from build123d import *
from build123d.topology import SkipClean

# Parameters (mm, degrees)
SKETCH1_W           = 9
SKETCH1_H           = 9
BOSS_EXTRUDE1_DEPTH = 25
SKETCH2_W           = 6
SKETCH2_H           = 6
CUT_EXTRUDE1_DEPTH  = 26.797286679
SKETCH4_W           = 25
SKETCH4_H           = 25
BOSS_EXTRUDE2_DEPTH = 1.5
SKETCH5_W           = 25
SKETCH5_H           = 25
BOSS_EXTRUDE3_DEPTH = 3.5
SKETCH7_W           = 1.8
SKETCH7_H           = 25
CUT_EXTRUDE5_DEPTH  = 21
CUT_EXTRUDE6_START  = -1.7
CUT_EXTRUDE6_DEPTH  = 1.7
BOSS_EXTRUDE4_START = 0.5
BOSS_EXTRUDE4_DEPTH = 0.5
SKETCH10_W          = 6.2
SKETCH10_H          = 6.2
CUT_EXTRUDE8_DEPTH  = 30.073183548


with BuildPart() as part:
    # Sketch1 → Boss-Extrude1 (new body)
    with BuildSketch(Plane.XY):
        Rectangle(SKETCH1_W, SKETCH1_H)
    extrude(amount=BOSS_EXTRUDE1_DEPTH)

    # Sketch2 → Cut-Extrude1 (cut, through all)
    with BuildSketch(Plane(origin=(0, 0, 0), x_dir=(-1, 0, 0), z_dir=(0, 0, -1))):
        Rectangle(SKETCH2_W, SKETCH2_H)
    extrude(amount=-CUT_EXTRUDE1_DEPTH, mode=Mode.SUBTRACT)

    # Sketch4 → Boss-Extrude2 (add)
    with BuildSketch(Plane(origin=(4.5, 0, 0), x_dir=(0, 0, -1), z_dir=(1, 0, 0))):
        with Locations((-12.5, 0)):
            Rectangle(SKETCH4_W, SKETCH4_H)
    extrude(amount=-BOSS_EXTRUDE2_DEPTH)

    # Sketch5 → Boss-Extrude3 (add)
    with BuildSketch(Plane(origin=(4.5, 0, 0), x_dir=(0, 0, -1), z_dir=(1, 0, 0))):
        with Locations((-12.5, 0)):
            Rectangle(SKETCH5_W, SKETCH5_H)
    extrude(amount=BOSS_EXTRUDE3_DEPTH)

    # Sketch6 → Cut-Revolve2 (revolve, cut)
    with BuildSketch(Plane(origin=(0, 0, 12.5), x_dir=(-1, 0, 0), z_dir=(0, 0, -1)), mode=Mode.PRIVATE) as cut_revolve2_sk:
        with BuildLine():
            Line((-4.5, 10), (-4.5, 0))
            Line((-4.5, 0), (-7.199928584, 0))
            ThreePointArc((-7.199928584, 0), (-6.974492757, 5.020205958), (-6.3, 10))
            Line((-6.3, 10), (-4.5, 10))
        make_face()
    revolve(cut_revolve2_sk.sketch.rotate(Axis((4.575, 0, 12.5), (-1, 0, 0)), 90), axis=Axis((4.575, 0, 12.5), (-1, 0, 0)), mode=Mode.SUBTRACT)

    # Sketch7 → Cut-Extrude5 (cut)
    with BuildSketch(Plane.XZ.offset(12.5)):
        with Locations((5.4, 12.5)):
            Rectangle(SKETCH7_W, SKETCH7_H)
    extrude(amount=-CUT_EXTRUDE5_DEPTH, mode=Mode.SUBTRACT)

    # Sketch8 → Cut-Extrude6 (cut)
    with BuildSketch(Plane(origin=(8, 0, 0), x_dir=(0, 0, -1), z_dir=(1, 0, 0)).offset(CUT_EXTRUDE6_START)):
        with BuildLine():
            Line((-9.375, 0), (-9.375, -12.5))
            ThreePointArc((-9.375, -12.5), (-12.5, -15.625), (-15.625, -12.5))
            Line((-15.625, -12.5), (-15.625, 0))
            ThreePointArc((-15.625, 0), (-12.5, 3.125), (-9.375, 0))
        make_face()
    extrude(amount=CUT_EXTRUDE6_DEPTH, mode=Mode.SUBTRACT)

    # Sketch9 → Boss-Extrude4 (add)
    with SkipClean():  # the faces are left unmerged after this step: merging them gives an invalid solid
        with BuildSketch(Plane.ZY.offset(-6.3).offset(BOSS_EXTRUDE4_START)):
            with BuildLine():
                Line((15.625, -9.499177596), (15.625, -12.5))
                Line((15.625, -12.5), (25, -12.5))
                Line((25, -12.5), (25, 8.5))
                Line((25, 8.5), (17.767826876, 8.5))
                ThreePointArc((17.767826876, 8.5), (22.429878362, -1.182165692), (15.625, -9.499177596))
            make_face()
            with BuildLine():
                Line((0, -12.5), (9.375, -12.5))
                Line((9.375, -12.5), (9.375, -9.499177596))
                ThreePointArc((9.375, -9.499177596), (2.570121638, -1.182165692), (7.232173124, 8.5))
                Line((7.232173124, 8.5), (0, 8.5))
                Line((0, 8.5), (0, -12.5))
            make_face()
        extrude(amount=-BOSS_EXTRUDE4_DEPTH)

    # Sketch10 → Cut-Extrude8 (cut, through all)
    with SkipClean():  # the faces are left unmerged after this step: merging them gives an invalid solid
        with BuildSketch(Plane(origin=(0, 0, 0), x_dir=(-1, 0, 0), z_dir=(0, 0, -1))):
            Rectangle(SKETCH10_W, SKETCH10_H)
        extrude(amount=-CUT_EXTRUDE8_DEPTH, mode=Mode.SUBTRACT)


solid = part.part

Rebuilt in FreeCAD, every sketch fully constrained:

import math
import FreeCAD as App
import Part
import Sketcher
Q = App.Units.Quantity

doc = App.newDocument("Part")
body = doc.addObject("PartDesign::Body", "Body")

sketch1 = body.newObject("Sketcher::SketchObject", "Sketch")
sketch1.AttachmentSupport = (doc.getObject("XY_Plane"), [""])
sketch1.MapMode = "FlatFace"
sketch1.addGeometry([
    Part.LineSegment(App.Vector(-4.5, 4.5, 0), App.Vector(-4.5, -4.5, 0)),
    Part.LineSegment(App.Vector(-4.5, -4.5, 0), App.Vector(4.5, -4.5, 0)),
    Part.LineSegment(App.Vector(4.5, -4.5, 0), App.Vector(4.5, 4.5, 0)),
    Part.LineSegment(App.Vector(4.5, 4.5, 0), App.Vector(-4.5, 4.5, 0)),
], False)
sketch1.addConstraint([
    Sketcher.Constraint("Coincident", 0, 2, 1, 1),
    Sketcher.Constraint("Coincident", 1, 2, 2, 1),
    Sketcher.Constraint("Coincident", 2, 2, 3, 1),
    Sketcher.Constraint("Coincident", 3, 2, 0, 1),
    Sketcher.Constraint("Vertical", 0),
    Sketcher.Constraint("Horizontal", 1),
    Sketcher.Constraint("Vertical", 2),
    Sketcher.Constraint("Horizontal", 3),
    Sketcher.Constraint("Symmetric", 0, 2, 2, 2, -1, 1),
    Sketcher.Constraint("Equal", 3, 0),
    Sketcher.Constraint("DistanceX", 1, 1, 1, 2, Q("9 mm")),
])
pad1 = body.newObject("PartDesign::Pad", "Pad")
pad1.Profile = sketch1
pad1.Length = 25

sketch2 = body.newObject("Sketcher::SketchObject", "Sketch001")
sketch2.AttachmentSupport = (doc.getObject("XY_Plane"), [""])
sketch2.MapMode = "FlatFace"
sketch2.addGeometry([
    Part.LineSegment(App.Vector(3, 3, 0), App.Vector(3, -3, 0)),
    Part.LineSegment(App.Vector(3, -3, 0), App.Vector(-3, -3, 0)),
    Part.LineSegment(App.Vector(-3, -3, 0), App.Vector(-3, 3, 0)),
    Part.LineSegment(App.Vector(-3, 3, 0), App.Vector(3, 3, 0)),
], False)
sketch2.addConstraint([
    Sketcher.Constraint("Coincident", 0, 2, 1, 1),
    Sketcher.Constraint("Coincident", 1, 2, 2, 1),
    Sketcher.Constraint("Coincident", 2, 2, 3, 1),
    Sketcher.Constraint("Coincident", 3, 2, 0, 1),
    Sketcher.Constraint("Vertical", 0),
    Sketcher.Constraint("Horizontal", 1),
    Sketcher.Constraint("Vertical", 2),
    Sketcher.Constraint("Horizontal", 3),
    Sketcher.Constraint("Symmetric", 0, 2, 2, 2, -1, 1),
    Sketcher.Constraint("Equal", 3, 0),
    Sketcher.Constraint("DistanceX", 1, 2, 1, 1, Q("6 mm")),
])
pocket1 = body.newObject("PartDesign::Pocket", "Pocket")
pocket1.Profile = sketch2
pocket1.Type = "ThroughAll"
pocket1.Reversed = True

sketch3 = body.newObject("Sketcher::SketchObject", "Sketch002")
sketch3.AttachmentSupport = (doc.getObject("YZ_Plane"), [""])
sketch3.MapMode = "FlatFace"
sketch3.AttachmentOffset = App.Placement(App.Vector(0, 0, 4.5), App.Rotation())
sketch3.addGeometry([
    Part.LineSegment(App.Vector(12.5, 25, 0), App.Vector(-12.5, 25, 0)),
    Part.LineSegment(App.Vector(-12.5, 25, 0), App.Vector(-12.5, 0, 0)),
    Part.LineSegment(App.Vector(-12.5, 0, 0), App.Vector(12.5, 0, 0)),
    Part.LineSegment(App.Vector(12.5, 0, 0), App.Vector(12.5, 25, 0)),
], False)
sketch3.addConstraint([
    Sketcher.Constraint("Coincident", 0, 2, 1, 1),
    Sketcher.Constraint("Coincident", 1, 2, 2, 1),
    Sketcher.Constraint("Coincident", 2, 2, 3, 1),
    Sketcher.Constraint("Coincident", 3, 2, 0, 1),
    Sketcher.Constraint("Horizontal", 0),
    Sketcher.Constraint("Vertical", 1),
    Sketcher.Constraint("Horizontal", 2),
    Sketcher.Constraint("Vertical", 3),
    Sketcher.Constraint("Symmetric", 1, 2, 2, 2, -1, 1),
    Sketcher.Constraint("Equal", 2, 1),
    Sketcher.Constraint("DistanceX", 0, 2, 0, 1, Q("25 mm")),
])
pad2 = body.newObject("PartDesign::Pad", "Pad001")
pad2.Profile = sketch3
pad2.Length = 1.5
pad2.Reversed = True

sketch4 = body.newObject("Sketcher::SketchObject", "Sketch003")
sketch4.AttachmentSupport = (doc.getObject("YZ_Plane"), [""])
sketch4.MapMode = "FlatFace"
sketch4.AttachmentOffset = App.Placement(App.Vector(0, 0, 4.5), App.Rotation())
sketch4.addGeometry([
    Part.LineSegment(App.Vector(12.5, 25, 0), App.Vector(-12.5, 25, 0)),
    Part.LineSegment(App.Vector(-12.5, 25, 0), App.Vector(-12.5, 0, 0)),
    Part.LineSegment(App.Vector(-12.5, 0, 0), App.Vector(12.5, 0, 0)),
    Part.LineSegment(App.Vector(12.5, 0, 0), App.Vector(12.5, 25, 0)),
], False)
sketch4.addConstraint([
    Sketcher.Constraint("Coincident", 0, 2, 1, 1),
    Sketcher.Constraint("Coincident", 1, 2, 2, 1),
    Sketcher.Constraint("Coincident", 2, 2, 3, 1),
    Sketcher.Constraint("Coincident", 3, 2, 0, 1),
    Sketcher.Constraint("Horizontal", 0),
    Sketcher.Constraint("Vertical", 1),
    Sketcher.Constraint("Horizontal", 2),
    Sketcher.Constraint("Vertical", 3),
    Sketcher.Constraint("Symmetric", 1, 2, 2, 2, -1, 1),
    Sketcher.Constraint("Equal", 2, 1),
    Sketcher.Constraint("DistanceX", 0, 2, 0, 1, Q("25 mm")),
])
pad3 = body.newObject("PartDesign::Pad", "Pad002")
pad3.Profile = sketch4
pad3.Length = 3.5

sketch5 = body.newObject("Sketcher::SketchObject", "Sketch004")
sketch5.AttachmentSupport = (doc.getObject("XY_Plane"), [""])
sketch5.MapMode = "FlatFace"
sketch5.AttachmentOffset = App.Placement(App.Vector(0, 0, 12.5), App.Rotation())
sketch5.addGeometry([
    Part.LineSegment(App.Vector(4.5, 0, 0), App.Vector(4.5, 10, 0)),
    Part.LineSegment(App.Vector(4.5, 10, 0), App.Vector(6.3, 10, 0)),
    Part.ArcOfCircle(Part.Circle(App.Vector(-48.81, 0, 0), App.Vector(0, 0, 1), 56.009929), math.radians(0), math.radians(10.284717)),
    Part.LineSegment(App.Vector(7.199929, 0, 0), App.Vector(4.5, 0, 0)),
], False)
sketch5.addConstraint([
    Sketcher.Constraint("Coincident", 0, 2, 1, 1),
    Sketcher.Constraint("Coincident", 1, 2, 2, 2),
    Sketcher.Constraint("Coincident", 2, 1, 3, 1),
    Sketcher.Constraint("Coincident", 3, 2, 0, 1),
    Sketcher.Constraint("Vertical", 0),
    Sketcher.Constraint("Horizontal", 1),
    Sketcher.Constraint("Horizontal", 3),
    Sketcher.Constraint("PointOnObject", 2, 3, -1),
    Sketcher.Constraint("PointOnObject", 2, 1, -1),
    Sketcher.Constraint("DistanceY", 0, 1, 0, 2, Q("10 mm")),
    Sketcher.Constraint("DistanceX", 1, 1, 1, 2, Q("1.8 mm")),
    Sketcher.Constraint("DistanceX", -1, 1, 0, 2, Q("4.5 mm")),
    Sketcher.Constraint("DistanceX", 2, 3, -1, 1, Q("48.81 mm")),
])
groove = body.newObject("PartDesign::Groove", "Groove")
groove.Profile = sketch5
groove.ReferenceAxis = (sketch5, ["H_Axis"])
groove.Angle = 360

sketch6 = body.newObject("Sketcher::SketchObject", "Sketch005")
sketch6.AttachmentSupport = (doc.getObject("XZ_Plane"), [""])
sketch6.MapMode = "FlatFace"
sketch6.AttachmentOffset = App.Placement(App.Vector(0, 0, 12.5), App.Rotation())
sketch6.addGeometry([
    Part.LineSegment(App.Vector(4.5, 25, 0), App.Vector(4.5, 0, 0)),
    Part.LineSegment(App.Vector(4.5, 0, 0), App.Vector(6.3, 0, 0)),
    Part.LineSegment(App.Vector(6.3, 0, 0), App.Vector(6.3, 25, 0)),
    Part.LineSegment(App.Vector(6.3, 25, 0), App.Vector(4.5, 25, 0)),
], False)
sketch6.addConstraint([
    Sketcher.Constraint("Coincident", 0, 2, 1, 1),
    Sketcher.Constraint("Coincident", 1, 2, 2, 1),
    Sketcher.Constraint("Coincident", 2, 2, 3, 1),
    Sketcher.Constraint("Coincident", 3, 2, 0, 1),
    Sketcher.Constraint("Vertical", 0),
    Sketcher.Constraint("Horizontal", 1),
    Sketcher.Constraint("Vertical", 2),
    Sketcher.Constraint("Horizontal", 3),
    Sketcher.Constraint("PointOnObject", 0, 2, -1),
    Sketcher.Constraint("DistanceY", 0, 2, 0, 1, Q("25 mm")),
    Sketcher.Constraint("DistanceX", 1, 1, 1, 2, Q("1.8 mm")),
    Sketcher.Constraint("DistanceX", -1, 1, 0, 2, Q("4.5 mm")),
])
pocket2 = body.newObject("PartDesign::Pocket", "Pocket001")
pocket2.Profile = sketch6
pocket2.Length = 21

sketch7 = body.newObject("Sketcher::SketchObject", "Sketch006")
sketch7.AttachmentSupport = (doc.getObject("YZ_Plane"), [""])
sketch7.MapMode = "FlatFace"
sketch7.AttachmentOffset = App.Placement(App.Vector(0, 0, 6.3), App.Rotation())
sketch7.addGeometry([
    Part.LineSegment(App.Vector(-12.5, 9.375, 0), App.Vector(0, 9.375, 0)),
    Part.ArcOfCircle(Part.Circle(App.Vector(0, 12.5, 0), App.Vector(0, 0, 1), 3.125), math.radians(-90), math.radians(90)),
    Part.LineSegment(App.Vector(0, 15.625, 0), App.Vector(-12.5, 15.625, 0)),
    Part.ArcOfCircle(Part.Circle(App.Vector(-12.5, 12.5, 0), App.Vector(0, 0, 1), 3.125), math.radians(90), math.radians(270)),
], False)
sketch7.addConstraint([
    Sketcher.Constraint("Tangent", 0, 2, 1, 1),
    Sketcher.Constraint("Tangent", 1, 2, 2, 1),
    Sketcher.Constraint("Tangent", 2, 2, 3, 1),
    Sketcher.Constraint("Tangent", 3, 2, 0, 1),
    Sketcher.Constraint("Horizontal", 0),
    Sketcher.Constraint("Horizontal", 2),
    Sketcher.Constraint("PointOnObject", 1, 3, -2),
    Sketcher.Constraint("DistanceX", 0, 1, 0, 2, Q("12.5 mm")),
    Sketcher.Constraint("Radius", 1, Q("3.125 mm")),
    Sketcher.Constraint("DistanceY", -1, 1, 1, 3, Q("12.5 mm")),
])
pocket3 = body.newObject("PartDesign::Pocket", "Pocket002")
pocket3.Profile = sketch7
pocket3.Length = 1.7
pocket3.Reversed = True

sketch8 = body.newObject("Sketcher::SketchObject", "Sketch007")
sketch8.AttachmentSupport = (doc.getObject("YZ_Plane"), [""])
sketch8.MapMode = "FlatFace"
sketch8.AttachmentOffset = App.Placement(App.Vector(0, 0, 5.8), App.Rotation())
sketch8.addGeometry([
    Part.LineSegment(App.Vector(-9.499178, 15.625, 0), App.Vector(-12.5, 15.625, 0)),
    Part.LineSegment(App.Vector(-12.5, 15.625, 0), App.Vector(-12.5, 25, 0)),
    Part.LineSegment(App.Vector(-12.5, 25, 0), App.Vector(8.5, 25, 0)),
    Part.LineSegment(App.Vector(8.5, 25, 0), App.Vector(8.5, 17.767827, 0)),
    Part.ArcOfCircle(Part.Circle(App.Vector(0, 12.5, 0), App.Vector(0, 0, 1), 10), math.radians(31.788331), math.radians(161.790043)),
    Part.LineSegment(App.Vector(-12.5, 0, 0), App.Vector(-12.5, 9.375, 0)),
    Part.LineSegment(App.Vector(-12.5, 9.375, 0), App.Vector(-9.499178, 9.375, 0)),
    Part.ArcOfCircle(Part.Circle(App.Vector(0, 12.5, 0), App.Vector(0, 0, 1), 10), math.radians(-161.790043), math.radians(-31.788331)),
    Part.LineSegment(App.Vector(8.5, 7.232173, 0), App.Vector(8.5, 0, 0)),
    Part.LineSegment(App.Vector(8.5, 0, 0), App.Vector(-12.5, 0, 0)),
], False)
sketch8.addConstraint([
    Sketcher.Constraint("Coincident", 0, 2, 1, 1),
    Sketcher.Constraint("Coincident", 1, 2, 2, 1),
    Sketcher.Constraint("Coincident", 2, 2, 3, 1),
    Sketcher.Constraint("Coincident", 3, 2, 4, 1),
    Sketcher.Constraint("Coincident", 4, 2, 0, 1),
    Sketcher.Constraint("Coincident", 5, 2, 6, 1),
    Sketcher.Constraint("Coincident", 6, 2, 7, 1),
    Sketcher.Constraint("Coincident", 7, 2, 8, 1),
    Sketcher.Constraint("Coincident", 8, 2, 9, 1),
    Sketcher.Constraint("Coincident", 9, 2, 5, 1),
    Sketcher.Constraint("Horizontal", 0),
    Sketcher.Constraint("Vertical", 1),
    Sketcher.Constraint("Horizontal", 2),
    Sketcher.Constraint("Vertical", 3),
    Sketcher.Constraint("Vertical", 5),
    Sketcher.Constraint("Horizontal", 6),
    Sketcher.Constraint("Vertical", 8),
    Sketcher.Constraint("Horizontal", 9),
    Sketcher.Constraint("Coincident", 7, 3, 4, 3),
    Sketcher.Constraint("Equal", 4, 7),
    Sketcher.Constraint("PointOnObject", 4, 3, -2),
    Sketcher.Constraint("PointOnObject", 8, 2, -1),
    Sketcher.Constraint("Vertical", 1, 2, 5, 2),
    Sketcher.Constraint("Vertical", 4, 2, 6, 2),
    Sketcher.Constraint("Vertical", 3, 2, 7, 2),
    Sketcher.Constraint("Equal", 1, 5),
    Sketcher.Constraint("Radius", 4, Q("10 mm")),
    Sketcher.Constraint("DistanceX", 2, 1, 2, 2, Q("21 mm")),
    Sketcher.Constraint("DistanceY", -1, 1, 1, 2, Q("25 mm")),
    Sketcher.Constraint("DistanceX", 0, 2, -1, 1, Q("12.5 mm")),
    Sketcher.Constraint("DistanceY", 1, 1, 1, 2, Q("9.375 mm")),
])
pad4 = body.newObject("PartDesign::Pad", "Pad003")
pad4.Profile = sketch8
pad4.Length = 0.5

sketch9 = body.newObject("Sketcher::SketchObject", "Sketch008")
sketch9.AttachmentSupport = (doc.getObject("XY_Plane"), [""])
sketch9.MapMode = "FlatFace"
sketch9.addGeometry([
    Part.LineSegment(App.Vector(3.1, 3.1, 0), App.Vector(3.1, -3.1, 0)),
    Part.LineSegment(App.Vector(3.1, -3.1, 0), App.Vector(-3.1, -3.1, 0)),
    Part.LineSegment(App.Vector(-3.1, -3.1, 0), App.Vector(-3.1, 3.1, 0)),
    Part.LineSegment(App.Vector(-3.1, 3.1, 0), App.Vector(3.1, 3.1, 0)),
], False)
sketch9.addConstraint([
    Sketcher.Constraint("Coincident", 0, 2, 1, 1),
    Sketcher.Constraint("Coincident", 1, 2, 2, 1),
    Sketcher.Constraint("Coincident", 2, 2, 3, 1),
    Sketcher.Constraint("Coincident", 3, 2, 0, 1),
    Sketcher.Constraint("Vertical", 0),
    Sketcher.Constraint("Horizontal", 1),
    Sketcher.Constraint("Vertical", 2),
    Sketcher.Constraint("Horizontal", 3),
    Sketcher.Constraint("Symmetric", 0, 2, 2, 2, -1, 1),
    Sketcher.Constraint("Equal", 3, 0),
    Sketcher.Constraint("DistanceX", 1, 2, 1, 1, Q("6.2 mm")),
])
pocket4 = body.newObject("PartDesign::Pocket", "Pocket003")
pocket4.Profile = sketch9
pocket4.Type = "ThroughAll"
pocket4.Reversed = True

doc.recompute()
